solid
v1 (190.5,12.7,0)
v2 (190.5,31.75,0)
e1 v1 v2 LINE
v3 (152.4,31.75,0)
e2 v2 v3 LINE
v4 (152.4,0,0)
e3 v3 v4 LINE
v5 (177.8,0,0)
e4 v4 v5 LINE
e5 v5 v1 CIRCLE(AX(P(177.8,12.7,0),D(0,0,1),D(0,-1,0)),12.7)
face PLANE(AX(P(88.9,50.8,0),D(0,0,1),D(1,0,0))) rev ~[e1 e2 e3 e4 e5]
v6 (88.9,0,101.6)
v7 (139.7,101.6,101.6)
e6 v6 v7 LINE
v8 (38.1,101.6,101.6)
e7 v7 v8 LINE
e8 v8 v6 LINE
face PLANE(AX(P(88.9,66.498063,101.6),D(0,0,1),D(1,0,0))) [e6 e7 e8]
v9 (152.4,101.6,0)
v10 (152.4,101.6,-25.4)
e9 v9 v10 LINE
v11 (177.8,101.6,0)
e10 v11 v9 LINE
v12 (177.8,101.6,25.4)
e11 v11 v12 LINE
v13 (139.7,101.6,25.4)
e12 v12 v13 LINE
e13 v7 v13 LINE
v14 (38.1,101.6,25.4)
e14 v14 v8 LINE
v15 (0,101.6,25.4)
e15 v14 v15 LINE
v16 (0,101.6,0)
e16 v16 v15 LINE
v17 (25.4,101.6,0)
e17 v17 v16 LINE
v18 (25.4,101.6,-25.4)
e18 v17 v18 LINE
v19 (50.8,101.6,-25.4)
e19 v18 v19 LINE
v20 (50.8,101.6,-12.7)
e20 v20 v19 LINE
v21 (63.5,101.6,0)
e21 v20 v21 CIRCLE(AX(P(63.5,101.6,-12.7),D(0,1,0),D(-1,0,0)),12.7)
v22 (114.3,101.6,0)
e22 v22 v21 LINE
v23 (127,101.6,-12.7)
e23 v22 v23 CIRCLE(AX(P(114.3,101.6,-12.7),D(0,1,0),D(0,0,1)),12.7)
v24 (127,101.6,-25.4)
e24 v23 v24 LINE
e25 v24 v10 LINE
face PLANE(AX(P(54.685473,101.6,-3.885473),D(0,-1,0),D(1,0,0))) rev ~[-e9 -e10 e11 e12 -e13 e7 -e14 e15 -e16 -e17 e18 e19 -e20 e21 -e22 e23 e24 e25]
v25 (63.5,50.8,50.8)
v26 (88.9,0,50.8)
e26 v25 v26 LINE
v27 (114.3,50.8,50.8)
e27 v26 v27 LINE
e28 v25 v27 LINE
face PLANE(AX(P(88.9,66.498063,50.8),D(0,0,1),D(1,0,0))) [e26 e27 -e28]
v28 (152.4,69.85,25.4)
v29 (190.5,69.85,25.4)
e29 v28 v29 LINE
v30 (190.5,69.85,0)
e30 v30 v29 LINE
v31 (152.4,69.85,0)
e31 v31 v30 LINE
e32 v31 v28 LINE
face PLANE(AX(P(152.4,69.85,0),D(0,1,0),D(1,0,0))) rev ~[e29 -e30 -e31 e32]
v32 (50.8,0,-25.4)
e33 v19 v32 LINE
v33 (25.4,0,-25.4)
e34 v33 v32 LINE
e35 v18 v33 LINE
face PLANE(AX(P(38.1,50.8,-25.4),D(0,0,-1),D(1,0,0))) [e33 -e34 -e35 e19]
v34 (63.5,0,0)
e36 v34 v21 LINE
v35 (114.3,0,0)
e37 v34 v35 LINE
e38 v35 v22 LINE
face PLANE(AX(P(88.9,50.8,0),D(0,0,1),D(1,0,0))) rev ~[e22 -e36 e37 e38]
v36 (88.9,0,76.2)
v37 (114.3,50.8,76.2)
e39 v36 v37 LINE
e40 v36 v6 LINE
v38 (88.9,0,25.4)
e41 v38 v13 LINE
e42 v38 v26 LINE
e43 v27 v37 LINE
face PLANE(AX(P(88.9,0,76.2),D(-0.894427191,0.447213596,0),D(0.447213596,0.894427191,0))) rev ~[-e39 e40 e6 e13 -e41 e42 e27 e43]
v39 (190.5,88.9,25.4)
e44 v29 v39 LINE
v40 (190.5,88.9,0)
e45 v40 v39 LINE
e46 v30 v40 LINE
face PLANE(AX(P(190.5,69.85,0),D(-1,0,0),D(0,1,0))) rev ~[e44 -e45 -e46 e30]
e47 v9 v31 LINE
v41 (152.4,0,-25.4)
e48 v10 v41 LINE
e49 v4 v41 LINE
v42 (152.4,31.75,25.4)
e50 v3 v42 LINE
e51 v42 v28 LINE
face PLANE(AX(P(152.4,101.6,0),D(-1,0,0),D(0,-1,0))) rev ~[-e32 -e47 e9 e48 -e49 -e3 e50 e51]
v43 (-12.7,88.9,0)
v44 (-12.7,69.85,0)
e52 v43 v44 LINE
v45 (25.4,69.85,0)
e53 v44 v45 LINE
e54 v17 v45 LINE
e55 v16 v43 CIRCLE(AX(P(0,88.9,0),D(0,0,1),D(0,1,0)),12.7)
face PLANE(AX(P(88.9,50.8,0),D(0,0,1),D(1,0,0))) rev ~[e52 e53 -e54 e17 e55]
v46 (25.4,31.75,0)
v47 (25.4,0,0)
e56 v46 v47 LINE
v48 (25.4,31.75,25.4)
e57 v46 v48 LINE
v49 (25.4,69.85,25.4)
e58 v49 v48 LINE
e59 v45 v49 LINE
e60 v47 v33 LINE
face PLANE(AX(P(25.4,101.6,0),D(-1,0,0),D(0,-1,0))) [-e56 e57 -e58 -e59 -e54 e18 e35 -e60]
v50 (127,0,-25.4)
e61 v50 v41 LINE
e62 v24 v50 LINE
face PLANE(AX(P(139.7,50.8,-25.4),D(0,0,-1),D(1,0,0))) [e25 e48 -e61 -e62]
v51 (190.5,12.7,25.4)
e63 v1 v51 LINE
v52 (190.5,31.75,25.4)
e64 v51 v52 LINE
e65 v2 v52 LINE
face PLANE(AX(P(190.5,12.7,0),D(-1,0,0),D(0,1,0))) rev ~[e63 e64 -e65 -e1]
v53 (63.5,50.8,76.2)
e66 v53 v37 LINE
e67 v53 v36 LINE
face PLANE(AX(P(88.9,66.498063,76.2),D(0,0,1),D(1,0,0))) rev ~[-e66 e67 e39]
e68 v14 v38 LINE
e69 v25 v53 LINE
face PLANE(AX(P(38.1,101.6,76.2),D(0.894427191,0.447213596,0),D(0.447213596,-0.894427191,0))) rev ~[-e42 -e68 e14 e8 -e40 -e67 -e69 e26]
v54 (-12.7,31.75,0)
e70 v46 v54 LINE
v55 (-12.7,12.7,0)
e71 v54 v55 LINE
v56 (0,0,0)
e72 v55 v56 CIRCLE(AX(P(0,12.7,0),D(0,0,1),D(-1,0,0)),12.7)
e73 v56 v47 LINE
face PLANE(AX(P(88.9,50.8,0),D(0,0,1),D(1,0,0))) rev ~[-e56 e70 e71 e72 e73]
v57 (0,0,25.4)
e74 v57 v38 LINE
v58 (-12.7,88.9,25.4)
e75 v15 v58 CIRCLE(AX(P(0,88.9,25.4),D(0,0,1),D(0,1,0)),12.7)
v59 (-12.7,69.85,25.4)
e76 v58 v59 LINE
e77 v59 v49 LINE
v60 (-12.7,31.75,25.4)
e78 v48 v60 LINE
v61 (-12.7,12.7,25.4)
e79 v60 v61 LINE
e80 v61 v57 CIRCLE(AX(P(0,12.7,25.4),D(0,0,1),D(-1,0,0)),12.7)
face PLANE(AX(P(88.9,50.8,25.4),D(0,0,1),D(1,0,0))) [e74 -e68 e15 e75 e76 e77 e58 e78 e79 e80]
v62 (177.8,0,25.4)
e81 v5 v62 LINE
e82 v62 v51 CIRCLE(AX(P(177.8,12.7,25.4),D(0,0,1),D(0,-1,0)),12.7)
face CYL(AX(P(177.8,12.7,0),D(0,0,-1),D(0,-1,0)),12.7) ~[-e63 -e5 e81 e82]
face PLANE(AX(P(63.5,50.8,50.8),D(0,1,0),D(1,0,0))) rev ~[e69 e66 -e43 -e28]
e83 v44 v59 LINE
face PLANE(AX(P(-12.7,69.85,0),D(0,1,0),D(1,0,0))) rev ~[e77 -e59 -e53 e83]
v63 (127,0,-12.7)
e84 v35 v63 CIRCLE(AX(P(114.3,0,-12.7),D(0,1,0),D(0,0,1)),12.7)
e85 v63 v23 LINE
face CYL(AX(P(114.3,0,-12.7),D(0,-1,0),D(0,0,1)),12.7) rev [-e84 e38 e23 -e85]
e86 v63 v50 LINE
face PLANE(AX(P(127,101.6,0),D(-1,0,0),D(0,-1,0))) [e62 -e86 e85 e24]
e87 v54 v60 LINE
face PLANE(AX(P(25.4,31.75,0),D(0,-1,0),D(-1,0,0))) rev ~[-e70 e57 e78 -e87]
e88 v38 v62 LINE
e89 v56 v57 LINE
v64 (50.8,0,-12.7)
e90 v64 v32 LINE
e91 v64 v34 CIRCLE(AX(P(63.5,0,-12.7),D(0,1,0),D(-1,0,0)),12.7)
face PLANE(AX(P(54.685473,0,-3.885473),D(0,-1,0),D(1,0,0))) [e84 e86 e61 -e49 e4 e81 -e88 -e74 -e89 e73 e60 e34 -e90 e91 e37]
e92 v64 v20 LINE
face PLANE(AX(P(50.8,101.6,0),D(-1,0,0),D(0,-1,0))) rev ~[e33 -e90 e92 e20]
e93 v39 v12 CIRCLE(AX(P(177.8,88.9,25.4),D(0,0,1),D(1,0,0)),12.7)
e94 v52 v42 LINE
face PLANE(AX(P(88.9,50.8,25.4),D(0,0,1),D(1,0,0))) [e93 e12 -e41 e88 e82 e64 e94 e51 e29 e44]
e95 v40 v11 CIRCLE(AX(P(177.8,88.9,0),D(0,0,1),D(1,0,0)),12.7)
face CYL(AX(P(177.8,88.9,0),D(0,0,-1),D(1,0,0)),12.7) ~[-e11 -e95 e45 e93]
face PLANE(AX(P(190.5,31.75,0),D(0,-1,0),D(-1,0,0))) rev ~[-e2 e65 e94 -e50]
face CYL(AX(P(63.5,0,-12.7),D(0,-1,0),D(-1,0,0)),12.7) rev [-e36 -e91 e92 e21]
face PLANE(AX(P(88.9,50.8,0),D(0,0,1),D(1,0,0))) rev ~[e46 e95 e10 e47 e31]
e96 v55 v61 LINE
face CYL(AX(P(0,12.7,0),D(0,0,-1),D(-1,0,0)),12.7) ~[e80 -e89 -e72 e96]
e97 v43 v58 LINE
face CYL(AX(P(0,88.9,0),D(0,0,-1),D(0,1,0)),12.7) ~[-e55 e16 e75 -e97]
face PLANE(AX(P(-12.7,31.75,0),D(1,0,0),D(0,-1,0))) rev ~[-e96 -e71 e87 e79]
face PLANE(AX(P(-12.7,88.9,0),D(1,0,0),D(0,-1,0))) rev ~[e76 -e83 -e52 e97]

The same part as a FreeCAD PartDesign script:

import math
import FreeCAD as App
import Part
import Sketcher
Q = App.Units.Quantity

doc = App.newDocument("Part")
body = doc.addObject("PartDesign::Body", "Body")

sketch1 = body.newObject("Sketcher::SketchObject", "Sketch")
sketch1.AttachmentSupport = (doc.getObject("XY_Plane"), [""])
sketch1.MapMode = "FlatFace"
sketch1.addGeometry(Part.LineSegment(App.Vector(0, 0, 0), App.Vector(177.8, 0, 0)), False)
sketch1.addGeometry(Part.ArcOfCircle(Part.Circle(App.Vector(177.8, 12.7, 0), App.Vector(0, 0, 1), 12.7), math.radians(-90), math.radians(0)), False)
sketch1.addGeometry(Part.LineSegment(App.Vector(190.5, 12.7, 0), App.Vector(190.5, 31.75, 0)), False)
sketch1.addGeometry(Part.LineSegment(App.Vector(190.5, 31.75, 0), App.Vector(152.4, 31.75, 0)), False)
sketch1.addGeometry(Part.LineSegment(App.Vector(152.4, 31.75, 0), App.Vector(152.4, 69.85, 0)), False)
sketch1.addGeometry(Part.LineSegment(App.Vector(152.4, 69.85, 0), App.Vector(190.5, 69.85, 0)), False)
sketch1.addGeometry(Part.LineSegment(App.Vector(190.5, 69.85, 0), App.Vector(190.5, 88.9, 0)), False)
sketch1.addGeometry(Part.ArcOfCircle(Part.Circle(App.Vector(177.8, 88.9, 0), App.Vector(0, 0, 1), 12.7), math.radians(0), math.radians(90)), False)
sketch1.addGeometry(Part.LineSegment(App.Vector(177.8, 101.6, 0), App.Vector(0, 101.6, 0)), False)
sketch1.addGeometry(Part.ArcOfCircle(Part.Circle(App.Vector(0, 88.9, 0), App.Vector(0, 0, 1), 12.7), math.radians(90), math.radians(180)), False)
sketch1.addGeometry(Part.LineSegment(App.Vector(-12.7, 88.9, 0), App.Vector(-12.7, 69.85, 0)), False)
sketch1.addGeometry(Part.LineSegment(App.Vector(-12.7, 69.85, 0), App.Vector(25.4, 69.85, 0)), False)
sketch1.addGeometry(Part.LineSegment(App.Vector(25.4, 69.85, 0), App.Vector(25.4, 31.75, 0)), False)
sketch1.addGeometry(Part.LineSegment(App.Vector(25.4, 31.75, 0), App.Vector(-12.7, 31.75, 0)), False)
sketch1.addGeometry(Part.LineSegment(App.Vector(-12.7, 31.75, 0), App.Vector(-12.7, 12.7, 0)), False)
sketch1.addGeometry(Part.ArcOfCircle(Part.Circle(App.Vector(0, 12.7, 0), App.Vector(0, 0, 1), 12.7), math.radians(180), math.radians(270)), False)
sketch1.addConstraint(Sketcher.Constraint("Tangent", 0, 2, 1, 1))
sketch1.addConstraint(Sketcher.Constraint("Tangent", 1, 2, 2, 1))
sketch1.addConstraint(Sketcher.Constraint("Coincident", 2, 2, 3, 1))
sketch1.addConstraint(Sketcher.Constraint("Coincident", 3, 2, 4, 1))
sketch1.addConstraint(Sketcher.Constraint("Coincident", 4, 2, 5, 1))
sketch1.addConstraint(Sketcher.Constraint("Coincident", 5, 2, 6, 1))
sketch1.addConstraint(Sketcher.Constraint("Tangent", 6, 2, 7, 1))
sketch1.addConstraint(Sketcher.Constraint("Tangent", 7, 2, 8, 1))
sketch1.addConstraint(Sketcher.Constraint("Tangent", 8, 2, 9, 1))
sketch1.addConstraint(Sketcher.Constraint("Tangent", 9, 2, 10, 1))
sketch1.addConstraint(Sketcher.Constraint("Coincident", 10, 2, 11, 1))
sketch1.addConstraint(Sketcher.Constraint("Coincident", 11, 2, 12, 1))
sketch1.addConstraint(Sketcher.Constraint("Coincident", 12, 2, 13, 1))
sketch1.addConstraint(Sketcher.Constraint("Coincident", 13, 2, 14, 1))
sketch1.addConstraint(Sketcher.Constraint("Tangent", 14, 2, 15, 1))
sketch1.addConstraint(Sketcher.Constraint("Tangent", 15, 2, 0, 1))
sketch1.addConstraint(Sketcher.Constraint("Horizontal", 0))
sketch1.addConstraint(Sketcher.Constraint("Vertical", 2))
sketch1.addConstraint(Sketcher.Constraint("Horizontal", 3))
sketch1.addConstraint(Sketcher.Constraint("Vertical", 4))
sketch1.addConstraint(Sketcher.Constraint("Horizontal", 5))
sketch1.addConstraint(Sketcher.Constraint("Vertical", 6))
sketch1.addConstraint(Sketcher.Constraint("Horizontal", 8))
sketch1.addConstraint(Sketcher.Constraint("Vertical", 10))
sketch1.addConstraint(Sketcher.Constraint("Horizontal", 11))
sketch1.addConstraint(Sketcher.Constraint("Vertical", 12))
sketch1.addConstraint(Sketcher.Constraint("Horizontal", 13))
sketch1.addConstraint(Sketcher.Constraint("Vertical", 14))
sketch1.addConstraint(Sketcher.Constraint("Coincident", 15, 2, -1, 1))
sketch1.addConstraint(Sketcher.Constraint("Equal", 1, 7))
sketch1.addConstraint(Sketcher.Constraint("Equal", 7, 9))
sketch1.addConstraint(Sketcher.Constraint("Equal", 9, 15))
sketch1.addConstraint(Sketcher.Constraint("PointOnObject", 9, 3, -2))
sketch1.addConstraint(Sketcher.Constraint("Horizontal", 5, 2, 10, 2))
sketch1.addConstraint(Sketcher.Constraint("Horizontal", 3, 2, 12, 2))
sketch1.addConstraint(Sketcher.Constraint("Vertical", 1, 3, 7, 3))
sketch1.addConstraint(Sketcher.Constraint("Equal", 5, 11))
sketch1.addConstraint(Sketcher.Constraint("Equal", 13, 4))
sketch1.addConstraint(Sketcher.Constraint("Equal", 2, 6))
sketch1.addConstraint(Sketcher.Constraint("Radius", 1, Q("0.5 in")))
sketch1.addConstraint(Sketcher.Constraint("DistanceX", 0, 1, 0, 2, Q("7 in")))
sketch1.addConstraint(Sketcher.Constraint("DistanceX", 3, 2, 3, 1, Q("1.5 in")))
sketch1.addConstraint(Sketcher.Constraint("DistanceY", -1, 1, 7, 2, Q("4 in")))
pad1 = body.newObject("PartDesign::Pad", "Pad")
pad1.Profile = sketch1
pad1.Length = Q("1 in")

sketch2 = body.newObject("Sketcher::SketchObject", "Sketch001")
sketch2.AttachmentSupport = (doc.getObject("XY_Plane"), [""])
sketch2.MapMode = "FlatFace"
sketch2.AttachmentOffset = App.Placement(App.Vector(0, 0, 1 * 25.4), App.Rotation())
sketch2.addGeometry(Part.LineSegment(App.Vector(38.1, 101.6, 0), App.Vector(88.9, 0, 0)), False)
sketch2.addGeometry(Part.LineSegment(App.Vector(88.9, 0, 0), App.Vector(139.7, 101.6, 0)), False)
sketch2.addGeometry(Part.LineSegment(App.Vector(139.7, 101.6, 0), App.Vector(38.1, 101.6, 0)), False)
sketch2.addConstraint(Sketcher.Constraint("Coincident", 0, 2, 1, 1))
sketch2.addConstraint(Sketcher.Constraint("Coincident", 1, 2, 2, 1))
sketch2.addConstraint(Sketcher.Constraint("Coincident", 2, 2, 0, 1))
sketch2.addConstraint(Sketcher.Constraint("Horizontal", 2))
sketch2.addConstraint(Sketcher.Constraint("PointOnObject", 0, 2, -1))
sketch2.addConstraint(Sketcher.Constraint("Equal", 0, 1))
sketch2.addConstraint(Sketcher.Constraint("DistanceX", 2, 2, 2, 1, Q("4 in")))
sketch2.addConstraint(Sketcher.Constraint("DistanceY", -1, 1, 1, 2, Q("4 in")))
sketch2.addConstraint(Sketcher.Constraint("DistanceX", -1, 1, 0, 2, Q("3.5 in")))
pad2 = body.newObject("PartDesign::Pad", "Pad001")
pad2.Profile = sketch2
pad2.Length = Q("1 in")

sketch3 = body.newObject("Sketcher::SketchObject", "Sketch002")
sketch3.AttachmentSupport = (doc.getObject("XY_Plane"), [""])
sketch3.MapMode = "FlatFace"
sketch3.AttachmentOffset = App.Placement(App.Vector(0, 0, 2 * 25.4), App.Rotation())
sketch3.addGeometry(Part.LineSegment(App.Vector(139.7, 101.6, 0), App.Vector(38.1, 101.6, 0)), False)
sketch3.addGeometry(Part.LineSegment(App.Vector(38.1, 101.6, 0), App.Vector(63.5, 50.8, 0)), False)
sketch3.addGeometry(Part.LineSegment(App.Vector(63.5, 50.8, 0), App.Vector(114.3, 50.8, 0)), False)
sketch3.addGeometry(Part.LineSegment(App.Vector(114.3, 50.8, 0), App.Vector(139.7, 101.6, 0)), False)
sketch3.addConstraint(Sketcher.Constraint("Coincident", 0, 2, 1, 1))
sketch3.addConstraint(Sketcher.Constraint("Coincident", 1, 2, 2, 1))
sketch3.addConstraint(Sketcher.Constraint("Coincident", 2, 2, 3, 1))
sketch3.addConstraint(Sketcher.Constraint("Coincident", 3, 2, 0, 1))
sketch3.addConstraint(Sketcher.Constraint("Horizontal", 0))
sketch3.addConstraint(Sketcher.Constraint("Horizontal", 2))
sketch3.addConstraint(Sketcher.Constraint("Equal", 1, 3))
sketch3.addConstraint(Sketcher.Constraint("DistanceX", 0, 2, 0, 1, Q("4 in")))
sketch3.addConstraint(Sketcher.Constraint("DistanceX", 2, 1, 2, 2, Q("2 in")))
sketch3.addConstraint(Sketcher.Constraint("DistanceY", -1, 1, 0, 2, Q("4 in")))
sketch3.addConstraint(Sketcher.Constraint("DistanceY", -1, 1, 1, 2, Q("2 in")))
sketch3.addConstraint(Sketcher.Constraint("DistanceX", -1, 1, 0, 2, Q("1.5 in")))
pad3 = body.newObject("PartDesign::Pad", "Pad002")
pad3.Profile = sketch3
pad3.Length = Q("1 in")

sketch4 = body.newObject("Sketcher::SketchObject", "Sketch003")
sketch4.AttachmentSupport = (doc.getObject("XY_Plane"), [""])
sketch4.MapMode = "FlatFace"
sketch4.AttachmentOffset = App.Placement(App.Vector(0, 0, 3 * 25.4), App.Rotation())
sketch4.addGeometry(Part.LineSegment(App.Vector(139.7, 101.6, 0), App.Vector(38.1, 101.6, 0)), False)
sketch4.addGeometry(Part.LineSegment(App.Vector(38.1, 101.6, 0), App.Vector(88.9, 0, 0)), False)
sketch4.addGeometry(Part.LineSegment(App.Vector(88.9, 0, 0), App.Vector(139.7, 101.6, 0)), False)
sketch4.addConstraint(Sketcher.Constraint("Coincident", 0, 2, 1, 1))
sketch4.addConstraint(Sketcher.Constraint("Coincident", 1, 2, 2, 1))
sketch4.addConstraint(Sketcher.Constraint("Coincident", 2, 2, 0, 1))
sketch4.addConstraint(Sketcher.Constraint("Horizontal", 0))
sketch4.addConstraint(Sketcher.Constraint("PointOnObject", 1, 2, -1))
sketch4.addConstraint(Sketcher.Constraint("Equal", 1, 2))
sketch4.addConstraint(Sketcher.Constraint("DistanceX", 0, 2, 0, 1, Q("4 in")))
sketch4.addConstraint(Sketcher.Constraint("DistanceY", -1, 1, 0, 2, Q("4 in")))
sketch4.addConstraint(Sketcher.Constraint("DistanceX", -1, 1, 0, 2, Q("1.5 in")))
pad4 = body.newObject("PartDesign::Pad", "Pad003")
pad4.Profile = sketch4
pad4.Length = Q("1 in")

sketch5 = body.newObject("Sketcher::SketchObject", "Sketch004")
sketch5.AttachmentSupport = (doc.getObject("XY_Plane"), [""])
sketch5.MapMode = "FlatFace"
sketch5.addGeometry(Part.LineSegment(App.Vector(25.4, 0, 0), App.Vector(25.4, 101.6, 0)), False)
sketch5.addGeometry(Part.LineSegment(App.Vector(25.4, 101.6, 0), App.Vector(50.8, 101.6, 0)), False)
sketch5.addGeometry(Part.LineSegment(App.Vector(50.8, 101.6, 0), App.Vector(50.8, 0, 0)), False)
sketch5.addGeometry(Part.LineSegment(App.Vector(50.8, 0, 0), App.Vector(25.4, 0, 0)), False)
sketch5.addGeometry(Part.LineSegment(App.Vector(127, 0, 0), App.Vector(127, 101.6, 0)), False)
sketch5.addGeometry(Part.LineSegment(App.Vector(127, 101.6, 0), App.Vector(152.4, 101.6, 0)), False)
sketch5.addGeometry(Part.LineSegment(App.Vector(152.4, 101.6, 0), App.Vector(152.4, 0, 0)), False)
sketch5.addGeometry(Part.LineSegment(App.Vector(152.4, 0, 0), App.Vector(127, 0, 0)), False)
sketch5.addConstraint(Sketcher.Constraint("Coincident", 0, 2, 1, 1))
sketch5.addConstraint(Sketcher.Constraint("Coincident", 1, 2, 2, 1))
sketch5.addConstraint(Sketcher.Constraint("Coincident", 2, 2, 3, 1))
sketch5.addConstraint(Sketcher.Constraint("Coincident", 3, 2, 0, 1))
sketch5.addConstraint(Sketcher.Constraint("Coincident", 4, 2, 5, 1))
sketch5.addConstraint(Sketcher.Constraint("Coincident", 5, 2, 6, 1))
sketch5.addConstraint(Sketcher.Constraint("Coincident", 6, 2, 7, 1))
sketch5.addConstraint(Sketcher.Constraint("Coincident", 7, 2, 4, 1))
sketch5.addConstraint(Sketcher.Constraint("Vertical", 0))
sketch5.addConstraint(Sketcher.Constraint("Horizontal", 1))
sketch5.addConstraint(Sketcher.Constraint("Vertical", 2))
sketch5.addConstraint(Sketcher.Constraint("Horizontal", 3))
sketch5.addConstraint(Sketcher.Constraint("Vertical", 4))
sketch5.addConstraint(Sketcher.Constraint("Horizontal", 5))
sketch5.addConstraint(Sketcher.Constraint("Vertical", 6))
sketch5.addConstraint(Sketcher.Constraint("Horizontal", 7))
sketch5.addConstraint(Sketcher.Constraint("PointOnObject", 2, 2, -1))
sketch5.addConstraint(Sketcher.Constraint("PointOnObject", 6, 2, -1))
sketch5.addConstraint(Sketcher.Constraint("Horizontal", 1, 2, 4, 2))
sketch5.addConstraint(Sketcher.Constraint("Equal", 3, 5))
sketch5.addConstraint(Sketcher.Constraint("DistanceX", 1, 1, 1, 2, Q("1 in")))
sketch5.addConstraint(Sketcher.Constraint("DistanceY", 0, 1, 0, 2, Q("4 in")))
sketch5.addConstraint(Sketcher.Constraint("DistanceX", -1, 1, 0, 2, Q("1 in")))
sketch5.addConstraint(Sketcher.Constraint("DistanceX", -1, 1, 4, 2, Q("5 in")))
pad5 = body.newObject("PartDesign::Pad", "Pad004")
pad5.Profile = sketch5
pad5.Length = Q("1 in")
pad5.Reversed = True

sketch6 = body.newObject("Sketcher::SketchObject", "Sketch005")
sketch6.AttachmentSupport = (doc.getObject("XZ_Plane"), [""])
sketch6.MapMode = "FlatFace"
sketch6.addGeometry(Part.LineSegment(App.Vector(63.5, 0, 0), App.Vector(50.8, 0, 0)), False)
sketch6.addGeometry(Part.LineSegment(App.Vector(50.8, 0, 0), App.Vector(50.8, -12.7, 0)), False)
sketch6.addGeometry(Part.ArcOfCircle(Part.Circle(App.Vector(63.5, -12.7, 0), App.Vector(0, 0, 1), 12.7), math.radians(90), math.radians(180)), False)
sketch6.addGeometry(Part.LineSegment(App.Vector(127, 0, 0), App.Vector(114.3, 0, 0)), False)
sketch6.addGeometry(Part.ArcOfCircle(Part.Circle(App.Vector(114.3, -12.7, 0), App.Vector(0, 0, 1), 12.7), math.radians(0), math.radians(90)), False)
sketch6.addGeometry(Part.LineSegment(App.Vector(127, -12.7, 0), App.Vector(127, 0, 0)), False)
sketch6.addConstraint(Sketcher.Constraint("Coincident", 0, 2, 1, 1))
sketch6.addConstraint(Sketcher.Constraint("Tangent", 1, 2, 2, 2))
sketch6.addConstraint(Sketcher.Constraint("Tangent", 2, 1, 0, 1))
sketch6.addConstraint(Sketcher.Constraint("Tangent", 3, 2, 4, 2))
sketch6.addConstraint(Sketcher.Constraint("Tangent", 4, 1, 5, 1))
sketch6.addConstraint(Sketcher.Constraint("Coincident", 5, 2, 3, 1))
sketch6.addConstraint(Sketcher.Constraint("Horizontal", 0))
sketch6.addConstraint(Sketcher.Constraint("Vertical", 1))
sketch6.addConstraint(Sketcher.Constraint("Horizontal", 3))
sketch6.addConstraint(Sketcher.Constraint("Vertical", 5))
sketch6.addConstraint(Sketcher.Constraint("Equal", 2, 4))
sketch6.addConstraint(Sketcher.Constraint("PointOnObject", 0, 2, -1))
sketch6.addConstraint(Sketcher.Constraint("PointOnObject", 3, 2, -1))
sketch6.addConstraint(Sketcher.Constraint("Radius", 2, Q("0.5 in")))
sketch6.addConstraint(Sketcher.Constraint("DistanceX", -1, 1, 0, 2, Q("2 in")))
sketch6.addConstraint(Sketcher.Constraint("DistanceX", -1, 1, 4, 1, Q("5 in")))
pad6 = body.newObject("PartDesign::Pad", "Pad005")
pad6.Profile = sketch6
pad6.Length = Q("4 in")
pad6.Reversed = True

doc.recompute()
